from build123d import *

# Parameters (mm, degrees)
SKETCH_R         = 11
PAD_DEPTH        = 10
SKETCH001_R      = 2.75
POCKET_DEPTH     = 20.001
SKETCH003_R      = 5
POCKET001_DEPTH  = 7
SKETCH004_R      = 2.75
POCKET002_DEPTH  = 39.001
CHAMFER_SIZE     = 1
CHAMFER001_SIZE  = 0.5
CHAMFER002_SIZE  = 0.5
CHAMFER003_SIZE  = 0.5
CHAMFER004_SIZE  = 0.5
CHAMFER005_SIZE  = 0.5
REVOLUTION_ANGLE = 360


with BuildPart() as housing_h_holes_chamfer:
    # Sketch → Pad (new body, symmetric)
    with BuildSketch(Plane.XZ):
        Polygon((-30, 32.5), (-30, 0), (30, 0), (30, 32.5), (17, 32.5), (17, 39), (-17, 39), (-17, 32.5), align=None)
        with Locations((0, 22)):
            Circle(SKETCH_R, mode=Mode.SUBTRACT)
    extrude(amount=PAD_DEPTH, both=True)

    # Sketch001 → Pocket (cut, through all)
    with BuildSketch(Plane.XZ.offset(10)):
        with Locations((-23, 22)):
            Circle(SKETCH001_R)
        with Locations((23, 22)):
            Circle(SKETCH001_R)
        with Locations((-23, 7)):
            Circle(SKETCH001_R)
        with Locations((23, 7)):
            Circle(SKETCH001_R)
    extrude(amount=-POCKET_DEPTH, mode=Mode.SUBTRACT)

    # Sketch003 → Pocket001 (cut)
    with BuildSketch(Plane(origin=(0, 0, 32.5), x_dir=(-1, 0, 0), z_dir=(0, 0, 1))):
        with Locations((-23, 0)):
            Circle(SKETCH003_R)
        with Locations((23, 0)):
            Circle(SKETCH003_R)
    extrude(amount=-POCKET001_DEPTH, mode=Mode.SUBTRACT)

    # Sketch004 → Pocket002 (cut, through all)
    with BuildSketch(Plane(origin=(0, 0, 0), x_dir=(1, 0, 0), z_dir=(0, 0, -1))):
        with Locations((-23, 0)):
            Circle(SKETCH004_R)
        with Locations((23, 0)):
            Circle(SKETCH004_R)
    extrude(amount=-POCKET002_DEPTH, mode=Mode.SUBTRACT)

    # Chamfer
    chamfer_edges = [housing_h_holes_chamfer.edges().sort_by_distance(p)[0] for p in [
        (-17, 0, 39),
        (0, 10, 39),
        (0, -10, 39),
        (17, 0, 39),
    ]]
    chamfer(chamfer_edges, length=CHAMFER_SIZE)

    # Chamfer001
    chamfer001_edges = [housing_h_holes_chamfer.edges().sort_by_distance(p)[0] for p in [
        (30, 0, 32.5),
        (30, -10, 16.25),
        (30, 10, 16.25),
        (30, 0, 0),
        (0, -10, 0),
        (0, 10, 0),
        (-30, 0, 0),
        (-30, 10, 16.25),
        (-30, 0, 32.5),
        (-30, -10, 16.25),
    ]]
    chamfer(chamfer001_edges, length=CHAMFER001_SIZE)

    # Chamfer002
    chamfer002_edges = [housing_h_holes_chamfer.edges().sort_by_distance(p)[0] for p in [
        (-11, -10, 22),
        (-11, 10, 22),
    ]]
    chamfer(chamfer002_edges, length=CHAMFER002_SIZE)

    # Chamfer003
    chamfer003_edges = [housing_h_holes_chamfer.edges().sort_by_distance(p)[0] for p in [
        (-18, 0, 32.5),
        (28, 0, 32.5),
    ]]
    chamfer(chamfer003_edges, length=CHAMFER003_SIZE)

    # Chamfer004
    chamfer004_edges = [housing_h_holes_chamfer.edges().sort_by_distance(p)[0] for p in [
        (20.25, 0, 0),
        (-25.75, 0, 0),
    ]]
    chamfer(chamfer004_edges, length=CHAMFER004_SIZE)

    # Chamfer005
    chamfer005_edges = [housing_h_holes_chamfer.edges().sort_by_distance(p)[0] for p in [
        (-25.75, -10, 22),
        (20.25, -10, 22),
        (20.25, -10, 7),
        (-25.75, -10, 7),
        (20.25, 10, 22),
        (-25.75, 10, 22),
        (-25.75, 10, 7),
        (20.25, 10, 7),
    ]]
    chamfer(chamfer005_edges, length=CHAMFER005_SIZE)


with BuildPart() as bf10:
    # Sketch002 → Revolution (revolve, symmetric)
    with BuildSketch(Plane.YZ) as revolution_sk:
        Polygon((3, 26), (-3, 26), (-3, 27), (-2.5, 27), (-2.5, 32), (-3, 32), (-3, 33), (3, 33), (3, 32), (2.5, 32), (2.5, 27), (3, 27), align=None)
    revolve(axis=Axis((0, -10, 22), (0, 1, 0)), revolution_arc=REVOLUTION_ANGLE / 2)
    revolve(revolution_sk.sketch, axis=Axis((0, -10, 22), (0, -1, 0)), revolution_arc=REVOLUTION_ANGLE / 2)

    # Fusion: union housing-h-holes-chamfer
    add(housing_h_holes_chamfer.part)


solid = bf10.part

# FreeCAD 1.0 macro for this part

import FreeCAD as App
import Part
import Sketcher

V = App.Vector


def edges_at(feature, points):
    """Names of the edges that pass closest to the given points."""
    edges = feature.Shape.Edges
    near = lambda p: min(range(len(edges)), key=lambda i: edges[i].distToShape(Part.Vertex(*p))[0])
    return sorted({f"Edge{near(p) + 1}" for p in points})


def add_polygon(sketch, points):
    """Adds a closed chain of lines whose ends are joined by coincident constraints."""
    first, n = sketch.GeometryCount, len(points)
    for a, b in zip(points, points[1:] + points[:1]):
        sketch.addGeometry(Part.LineSegment(App.Vector(*a, 0), App.Vector(*b, 0)), False)
    for i in range(n):
        sketch.addConstraint(Sketcher.Constraint("Coincident", first + i, 2, first + (i + 1) % n, 1))

doc = App.newDocument("Part")
body = doc.addObject("PartDesign::Body", "Body")

# Sketch on XZ plane
sketch1 = body.newObject("Sketcher::SketchObject", "Sketch")
sketch1.AttachmentSupport = (doc.getObject("XZ_Plane"), [""])
sketch1.MapMode = "FlatFace"
add_polygon(sketch1, [(-30, 32), (-30, 0), (30, 0), (30, 32), (17, 32), (17, 39), (-17, 39), (-17, 32)])  # lines 0-7
sketch1.addGeometry(Part.Circle(V(0, 22, 0), V(0, 0, 1), 11), False)  # 8
sketch1.addConstraint(Sketcher.Constraint("Vertical", 0))
sketch1.addConstraint(Sketcher.Constraint("Horizontal", 1))
sketch1.addConstraint(Sketcher.Constraint("Vertical", 2))
sketch1.addConstraint(Sketcher.Constraint("Horizontal", 3))
sketch1.addConstraint(Sketcher.Constraint("Vertical", 4))
sketch1.addConstraint(Sketcher.Constraint("Horizontal", 5))
sketch1.addConstraint(Sketcher.Constraint("Vertical", 6))
sketch1.addConstraint(Sketcher.Constraint("Horizontal", 7))
sketch1.addConstraint(Sketcher.Constraint("Symmetric", 0, 2, 1, 2, -1, 1))
sketch1.addConstraint(Sketcher.Constraint("Symmetric", 3, 2, 6, 2, -2))
sketch1.addConstraint(Sketcher.Constraint("PointOnObject", 8, 3, -2))
sketch1.addConstraint(Sketcher.Constraint("Diameter", 8, 22.0))
sketch1.addConstraint(Sketcher.Constraint("DistanceX", 1, 1, 1, 2, 60.0))
sketch1.addConstraint(Sketcher.Constraint("DistanceX", 3, 2, 3, 1, 13.0))
sketch1.addConstraint(Sketcher.Constraint("DistanceY", 0, 2, 0, 1, 32.5))
sketch1.addConstraint(Sketcher.Constraint("DistanceY", 4, 1, 4, 2, 6.5))
sketch1.addConstraint(Sketcher.Constraint("DistanceY", -1, 1, 8, 3, 22.0))
pad1 = body.newObject("PartDesign::Pad", "Pad")
pad1.Profile = sketch1
pad1.Length = 20
pad1.Midplane = True

# Sketch on XZ plane
sketch2 = body.newObject("Sketcher::SketchObject", "Sketch001")
sketch2.AttachmentSupport = (doc.getObject("XZ_Plane"), [""])
sketch2.MapMode = "FlatFace"
sketch2.AttachmentOffset = App.Placement(V(0, 0, 10), App.Rotation())
sketch2.addGeometry(Part.Circle(V(-23, 22, 0), V(0, 0, 1), 2.8), False)
sketch2.addGeometry(Part.Circle(V(23, 22, 0), V(0, 0, 1), 2.8), False)
sketch2.addGeometry(Part.Circle(V(-23, 7, 0), V(0, 0, 1), 2.8), False)
sketch2.addGeometry(Part.Circle(V(23, 7, 0), V(0, 0, 1), 2.8), False)
sketch2.addConstraint(Sketcher.Constraint("Equal", 0, 1))
sketch2.addConstraint(Sketcher.Constraint("Equal", 1, 2))
sketch2.addConstraint(Sketcher.Constraint("Equal", 2, 3))
sketch2.addConstraint(Sketcher.Constraint("Symmetric", 0, 3, 1, 3, -2))
sketch2.addConstraint(Sketcher.Constraint("Symmetric", 2, 3, 3, 3, -2))
sketch2.addConstraint(Sketcher.Constraint("Vertical", 0, 3, 2, 3))
sketch2.addConstraint(Sketcher.Constraint("Diameter", 0, 5.5))
sketch2.addConstraint(Sketcher.Constraint("DistanceX", 0, 3, -1, 1, 23.0))
sketch2.addConstraint(Sketcher.Constraint("DistanceY", -1, 1, 0, 3, 22.0))
sketch2.addConstraint(Sketcher.Constraint("DistanceY", -1, 1, 2, 3, 7.0))
pocket1 = body.newObject("PartDesign::Pocket", "Pocket")
pocket1.Profile = sketch2
pocket1.Type = "ThroughAll"

# Sketch on XY plane
sketch3 = body.newObject("Sketcher::SketchObject", "Sketch002")
sketch3.AttachmentSupport = (doc.getObject("XY_Plane"), [""])
sketch3.MapMode = "FlatFace"
sketch3.AttachmentOffset = App.Placement(V(0, 0, 32.5), App.Rotation())
sketch3.addGeometry(Part.Circle(V(23, 0, 0), V(0, 0, 1), 5), False)
sketch3.addGeometry(Part.Circle(V(-23, 0, 0), V(0, 0, 1), 5), False)
sketch3.addConstraint(Sketcher.Constraint("Equal", 0, 1))
sketch3.addConstraint(Sketcher.Constraint("Symmetric", 0, 3, 1, 3, -1, 1))
sketch3.addConstraint(Sketcher.Constraint("PointOnObject", 0, 3, -1))
sketch3.addConstraint(Sketcher.Constraint("Diameter", 0, 10.0))
sketch3.addConstraint(Sketcher.Constraint("DistanceX", -1, 1, 0, 3, 23.0))
pocket2 = body.newObject("PartDesign::Pocket", "Pocket001")
pocket2.Profile = sketch3
pocket2.Length = 7

# Sketch on XY plane
sketch4 = body.newObject("Sketcher::SketchObject", "Sketch003")
sketch4.AttachmentSupport = (doc.getObject("XY_Plane"), [""])
sketch4.MapMode = "FlatFace"
sketch4.addGeometry(Part.Circle(V(-23, 0, 0), V(0, 0, 1), 2.8), False)
sketch4.addGeometry(Part.Circle(V(23, 0, 0), V(0, 0, 1), 2.8), False)
sketch4.addConstraint(Sketcher.Constraint("Equal", 0, 1))
sketch4.addConstraint(Sketcher.Constraint("Symmetric", 0, 3, 1, 3, -1, 1))
sketch4.addConstraint(Sketcher.Constraint("PointOnObject", 0, 3, -1))
sketch4.addConstraint(Sketcher.Constraint("Diameter", 0, 5.5))
sketch4.addConstraint(Sketcher.Constraint("DistanceX", 0, 3, -1, 1, 23.0))
pocket3 = body.newObject("PartDesign::Pocket", "Pocket002")
pocket3.Profile = sketch4
pocket3.Type = "ThroughAll"
pocket3.Reversed = True
doc.recompute()

chamfer = body.newObject("PartDesign::Chamfer", "Chamfer")
chamfer.Base = (pocket3, edges_at(pocket3, [
    (-17, 0, 39),
    (0, 10, 39),
    (0, -10, 39),
    (17, 0, 39),
]))
chamfer.Size = 1
doc.recompute()

chamfer2 = body.newObject("PartDesign::Chamfer", "Chamfer001")
chamfer2.Base = (chamfer, edges_at(chamfer, [
    (30, 0, 32.5),
    (30, -10, 16.25),
    (30, 10, 16.25),
    (30, 0, 0),
    (0, -10, 0),
    (0, 10, 0),
    (-30, 0, 0),
    (-30, 10, 16.25),
    (-30, 0, 32.5),
    (-30, -10, 16.25),
]))
chamfer2.Size = 0.5
doc.recompute()

chamfer3 = body.newObject("PartDesign::Chamfer", "Chamfer002")
chamfer3.Base = (chamfer2, edges_at(chamfer2, [(-11, -10, 22), (-11, 10, 22)]))
chamfer3.Size = 0.5
doc.recompute()

chamfer4 = body.newObject("PartDesign::Chamfer", "Chamfer003")
chamfer4.Base = (chamfer3, edges_at(chamfer3, [(-18, 0, 32.5), (28, 0, 32.5)]))
chamfer4.Size = 0.5
doc.recompute()

chamfer5 = body.newObject("PartDesign::Chamfer", "Chamfer004")
chamfer5.Base = (chamfer4, edges_at(chamfer4, [(20.25, 0, 0), (-25.75, 0, 0)]))
chamfer5.Size = 0.5
doc.recompute()

chamfer6 = body.newObject("PartDesign::Chamfer", "Chamfer005")
chamfer6.Base = (chamfer5, edges_at(chamfer5, [
    (-25.75, -10, 22),
    (20.25, -10, 22),
    (20.25, -10, 7),
    (-25.75, -10, 7),
    (20.25, 10, 22),
    (-25.75, 10, 22),
    (-25.75, 10, 7),
    (20.25, 10, 7),
]))
chamfer6.Size = 0.5
body2 = doc.addObject("PartDesign::Body", "Body001")

# Sketch on YZ plane
sketch5 = body2.newObject("Sketcher::SketchObject", "Sketch004")
sketch5.AttachmentSupport = (doc.getObject("YZ_Plane001"), [""])
sketch5.MapMode = "FlatFace"
add_polygon(sketch5, [(-3, 26), (3, 26), (3, 27), (2.5, 27), (2.5, 32), (3, 32), (3, 33), (-3, 33), (-3, 32), (-2.5, 32), (-2.5, 27), (-3, 27)])  # lines 0-11
sketch5.addGeometry(Part.LineSegment(V(-3, 22, 0), V(3, 22, 0)), True)  # axis
sketch5.addConstraint(Sketcher.Constraint("Horizontal", 0))
sketch5.addConstraint(Sketcher.Constraint("Vertical", 1))
sketch5.addConstraint(Sketcher.Constraint("Horizontal", 2))
sketch5.addConstraint(Sketcher.Constraint("Vertical", 3))
sketch5.addConstraint(Sketcher.Constraint("Horizontal", 4))
sketch5.addConstraint(Sketcher.Constraint("Vertical", 5))
sketch5.addConstraint(Sketcher.Constraint("Horizontal", 6))
sketch5.addConstraint(Sketcher.Constraint("Vertical", 7))
sketch5.addConstraint(Sketcher.Constraint("Horizontal", 8))
sketch5.addConstraint(Sketcher.Constraint("Vertical", 9))
sketch5.addConstraint(Sketcher.Constraint("Horizontal", 10))
sketch5.addConstraint(Sketcher.Constraint("Vertical", 11))
sketch5.addConstraint(Sketcher.Constraint("Horizontal", 12))
sketch5.addConstraint(Sketcher.Constraint("Symmetric", 4, 2, 7, 2, -2))
sketch5.addConstraint(Sketcher.Constraint("Symmetric", 2, 2, 9, 2, -2))
sketch5.addConstraint(Sketcher.Constraint("Vertical", 1, 2, 4, 2))
sketch5.addConstraint(Sketcher.Constraint("Vertical", 7, 2, 10, 2))
sketch5.addConstraint(Sketcher.Constraint("Vertical", 11, 2, 12, 1))
sketch5.addConstraint(Sketcher.Constraint("Vertical", 5, 2, 12, 2))
sketch5.addConstraint(Sketcher.Constraint("Equal", 1, 5))
sketch5.addConstraint(Sketcher.Constraint("DistanceX", 0, 1, 0, 2, 6.0))
sketch5.addConstraint(Sketcher.Constraint("DistanceY", 1, 1, 1, 2, 1.0))
sketch5.addConstraint(Sketcher.Constraint("DistanceY", 3, 1, 3, 2, 5.0))
sketch5.addConstraint(Sketcher.Constraint("DistanceX", 2, 2, 2, 1, 0.5))
sketch5.addConstraint(Sketcher.Constraint("DistanceY", -1, 1, 0, 2, 26.0))
sketch5.addConstraint(Sketcher.Constraint("DistanceY", -1, 1, 12, 1, 22.0))
revolution = body2.newObject("PartDesign::Revolution", "Revolution")
revolution.Profile = sketch5
revolution.ReferenceAxis = (sketch5, ["Axis0"])
revolution.Angle = 180

# Sketch on YZ plane
sketch6 = body2.newObject("Sketcher::SketchObject", "Sketch005")
sketch6.AttachmentSupport = (doc.getObject("YZ_Plane001"), [""])
sketch6.MapMode = "FlatFace"
add_polygon(sketch6, [(-3, 26), (3, 26), (3, 27), (2.5, 27), (2.5, 32), (3, 32), (3, 33), (-3, 33), (-3, 32), (-2.5, 32), (-2.5, 27), (-3, 27)])  # lines 0-11
sketch6.addGeometry(Part.LineSegment(V(3, 22, 0), V(-3, 22, 0)), True)  # axis
sketch6.addConstraint(Sketcher.Constraint("Horizontal", 0))
sketch6.addConstraint(Sketcher.Constraint("Vertical", 1))
sketch6.addConstraint(Sketcher.Constraint("Horizontal", 2))
sketch6.addConstraint(Sketcher.Constraint("Vertical", 3))
sketch6.addConstraint(Sketcher.Constraint("Horizontal", 4))
sketch6.addConstraint(Sketcher.Constraint("Vertical", 5))
sketch6.addConstraint(Sketcher.Constraint("Horizontal", 6))
sketch6.addConstraint(Sketcher.Constraint("Vertical", 7))
sketch6.addConstraint(Sketcher.Constraint("Horizontal", 8))
sketch6.addConstraint(Sketcher.Constraint("Vertical", 9))
sketch6.addConstraint(Sketcher.Constraint("Horizontal", 10))
sketch6.addConstraint(Sketcher.Constraint("Vertical", 11))
sketch6.addConstraint(Sketcher.Constraint("Horizontal", 12))
sketch6.addConstraint(Sketcher.Constraint("Symmetric", 4, 2, 7, 2, -2))
sketch6.addConstraint(Sketcher.Constraint("Symmetric", 2, 2, 9, 2, -2))
sketch6.addConstraint(Sketcher.Constraint("Vertical", 1, 2, 4, 2))
sketch6.addConstraint(Sketcher.Constraint("Vertical", 7, 2, 10, 2))
sketch6.addConstraint(Sketcher.Constraint("Vertical", 5, 2, 12, 1))
sketch6.addConstraint(Sketcher.Constraint("Vertical", 11, 2, 12, 2))
sketch6.addConstraint(Sketcher.Constraint("Equal", 1, 5))
sketch6.addConstraint(Sketcher.Constraint("DistanceX", 0, 1, 0, 2, 6.0))
sketch6.addConstraint(Sketcher.Constraint("DistanceY", 1, 1, 1, 2, 1.0))
sketch6.addConstraint(Sketcher.Constraint("DistanceY", 3, 1, 3, 2, 5.0))
sketch6.addConstraint(Sketcher.Constraint("DistanceX", 2, 2, 2, 1, 0.5))
sketch6.addConstraint(Sketcher.Constraint("DistanceY", -1, 1, 0, 2, 26.0))
sketch6.addConstraint(Sketcher.Constraint("DistanceY", -1, 1, 12, 1, 22.0))
revolution2 = body2.newObject("PartDesign::Revolution", "Revolution001")
revolution2.Profile = sketch6
revolution2.ReferenceAxis = (sketch6, ["Axis0"])
revolution2.Angle = 180
doc.recompute()

boolean = body2.newObject("PartDesign::Boolean", "Boolean")
boolean.Type = "Fuse"
boolean.addObjects([body])

doc.recompute()
